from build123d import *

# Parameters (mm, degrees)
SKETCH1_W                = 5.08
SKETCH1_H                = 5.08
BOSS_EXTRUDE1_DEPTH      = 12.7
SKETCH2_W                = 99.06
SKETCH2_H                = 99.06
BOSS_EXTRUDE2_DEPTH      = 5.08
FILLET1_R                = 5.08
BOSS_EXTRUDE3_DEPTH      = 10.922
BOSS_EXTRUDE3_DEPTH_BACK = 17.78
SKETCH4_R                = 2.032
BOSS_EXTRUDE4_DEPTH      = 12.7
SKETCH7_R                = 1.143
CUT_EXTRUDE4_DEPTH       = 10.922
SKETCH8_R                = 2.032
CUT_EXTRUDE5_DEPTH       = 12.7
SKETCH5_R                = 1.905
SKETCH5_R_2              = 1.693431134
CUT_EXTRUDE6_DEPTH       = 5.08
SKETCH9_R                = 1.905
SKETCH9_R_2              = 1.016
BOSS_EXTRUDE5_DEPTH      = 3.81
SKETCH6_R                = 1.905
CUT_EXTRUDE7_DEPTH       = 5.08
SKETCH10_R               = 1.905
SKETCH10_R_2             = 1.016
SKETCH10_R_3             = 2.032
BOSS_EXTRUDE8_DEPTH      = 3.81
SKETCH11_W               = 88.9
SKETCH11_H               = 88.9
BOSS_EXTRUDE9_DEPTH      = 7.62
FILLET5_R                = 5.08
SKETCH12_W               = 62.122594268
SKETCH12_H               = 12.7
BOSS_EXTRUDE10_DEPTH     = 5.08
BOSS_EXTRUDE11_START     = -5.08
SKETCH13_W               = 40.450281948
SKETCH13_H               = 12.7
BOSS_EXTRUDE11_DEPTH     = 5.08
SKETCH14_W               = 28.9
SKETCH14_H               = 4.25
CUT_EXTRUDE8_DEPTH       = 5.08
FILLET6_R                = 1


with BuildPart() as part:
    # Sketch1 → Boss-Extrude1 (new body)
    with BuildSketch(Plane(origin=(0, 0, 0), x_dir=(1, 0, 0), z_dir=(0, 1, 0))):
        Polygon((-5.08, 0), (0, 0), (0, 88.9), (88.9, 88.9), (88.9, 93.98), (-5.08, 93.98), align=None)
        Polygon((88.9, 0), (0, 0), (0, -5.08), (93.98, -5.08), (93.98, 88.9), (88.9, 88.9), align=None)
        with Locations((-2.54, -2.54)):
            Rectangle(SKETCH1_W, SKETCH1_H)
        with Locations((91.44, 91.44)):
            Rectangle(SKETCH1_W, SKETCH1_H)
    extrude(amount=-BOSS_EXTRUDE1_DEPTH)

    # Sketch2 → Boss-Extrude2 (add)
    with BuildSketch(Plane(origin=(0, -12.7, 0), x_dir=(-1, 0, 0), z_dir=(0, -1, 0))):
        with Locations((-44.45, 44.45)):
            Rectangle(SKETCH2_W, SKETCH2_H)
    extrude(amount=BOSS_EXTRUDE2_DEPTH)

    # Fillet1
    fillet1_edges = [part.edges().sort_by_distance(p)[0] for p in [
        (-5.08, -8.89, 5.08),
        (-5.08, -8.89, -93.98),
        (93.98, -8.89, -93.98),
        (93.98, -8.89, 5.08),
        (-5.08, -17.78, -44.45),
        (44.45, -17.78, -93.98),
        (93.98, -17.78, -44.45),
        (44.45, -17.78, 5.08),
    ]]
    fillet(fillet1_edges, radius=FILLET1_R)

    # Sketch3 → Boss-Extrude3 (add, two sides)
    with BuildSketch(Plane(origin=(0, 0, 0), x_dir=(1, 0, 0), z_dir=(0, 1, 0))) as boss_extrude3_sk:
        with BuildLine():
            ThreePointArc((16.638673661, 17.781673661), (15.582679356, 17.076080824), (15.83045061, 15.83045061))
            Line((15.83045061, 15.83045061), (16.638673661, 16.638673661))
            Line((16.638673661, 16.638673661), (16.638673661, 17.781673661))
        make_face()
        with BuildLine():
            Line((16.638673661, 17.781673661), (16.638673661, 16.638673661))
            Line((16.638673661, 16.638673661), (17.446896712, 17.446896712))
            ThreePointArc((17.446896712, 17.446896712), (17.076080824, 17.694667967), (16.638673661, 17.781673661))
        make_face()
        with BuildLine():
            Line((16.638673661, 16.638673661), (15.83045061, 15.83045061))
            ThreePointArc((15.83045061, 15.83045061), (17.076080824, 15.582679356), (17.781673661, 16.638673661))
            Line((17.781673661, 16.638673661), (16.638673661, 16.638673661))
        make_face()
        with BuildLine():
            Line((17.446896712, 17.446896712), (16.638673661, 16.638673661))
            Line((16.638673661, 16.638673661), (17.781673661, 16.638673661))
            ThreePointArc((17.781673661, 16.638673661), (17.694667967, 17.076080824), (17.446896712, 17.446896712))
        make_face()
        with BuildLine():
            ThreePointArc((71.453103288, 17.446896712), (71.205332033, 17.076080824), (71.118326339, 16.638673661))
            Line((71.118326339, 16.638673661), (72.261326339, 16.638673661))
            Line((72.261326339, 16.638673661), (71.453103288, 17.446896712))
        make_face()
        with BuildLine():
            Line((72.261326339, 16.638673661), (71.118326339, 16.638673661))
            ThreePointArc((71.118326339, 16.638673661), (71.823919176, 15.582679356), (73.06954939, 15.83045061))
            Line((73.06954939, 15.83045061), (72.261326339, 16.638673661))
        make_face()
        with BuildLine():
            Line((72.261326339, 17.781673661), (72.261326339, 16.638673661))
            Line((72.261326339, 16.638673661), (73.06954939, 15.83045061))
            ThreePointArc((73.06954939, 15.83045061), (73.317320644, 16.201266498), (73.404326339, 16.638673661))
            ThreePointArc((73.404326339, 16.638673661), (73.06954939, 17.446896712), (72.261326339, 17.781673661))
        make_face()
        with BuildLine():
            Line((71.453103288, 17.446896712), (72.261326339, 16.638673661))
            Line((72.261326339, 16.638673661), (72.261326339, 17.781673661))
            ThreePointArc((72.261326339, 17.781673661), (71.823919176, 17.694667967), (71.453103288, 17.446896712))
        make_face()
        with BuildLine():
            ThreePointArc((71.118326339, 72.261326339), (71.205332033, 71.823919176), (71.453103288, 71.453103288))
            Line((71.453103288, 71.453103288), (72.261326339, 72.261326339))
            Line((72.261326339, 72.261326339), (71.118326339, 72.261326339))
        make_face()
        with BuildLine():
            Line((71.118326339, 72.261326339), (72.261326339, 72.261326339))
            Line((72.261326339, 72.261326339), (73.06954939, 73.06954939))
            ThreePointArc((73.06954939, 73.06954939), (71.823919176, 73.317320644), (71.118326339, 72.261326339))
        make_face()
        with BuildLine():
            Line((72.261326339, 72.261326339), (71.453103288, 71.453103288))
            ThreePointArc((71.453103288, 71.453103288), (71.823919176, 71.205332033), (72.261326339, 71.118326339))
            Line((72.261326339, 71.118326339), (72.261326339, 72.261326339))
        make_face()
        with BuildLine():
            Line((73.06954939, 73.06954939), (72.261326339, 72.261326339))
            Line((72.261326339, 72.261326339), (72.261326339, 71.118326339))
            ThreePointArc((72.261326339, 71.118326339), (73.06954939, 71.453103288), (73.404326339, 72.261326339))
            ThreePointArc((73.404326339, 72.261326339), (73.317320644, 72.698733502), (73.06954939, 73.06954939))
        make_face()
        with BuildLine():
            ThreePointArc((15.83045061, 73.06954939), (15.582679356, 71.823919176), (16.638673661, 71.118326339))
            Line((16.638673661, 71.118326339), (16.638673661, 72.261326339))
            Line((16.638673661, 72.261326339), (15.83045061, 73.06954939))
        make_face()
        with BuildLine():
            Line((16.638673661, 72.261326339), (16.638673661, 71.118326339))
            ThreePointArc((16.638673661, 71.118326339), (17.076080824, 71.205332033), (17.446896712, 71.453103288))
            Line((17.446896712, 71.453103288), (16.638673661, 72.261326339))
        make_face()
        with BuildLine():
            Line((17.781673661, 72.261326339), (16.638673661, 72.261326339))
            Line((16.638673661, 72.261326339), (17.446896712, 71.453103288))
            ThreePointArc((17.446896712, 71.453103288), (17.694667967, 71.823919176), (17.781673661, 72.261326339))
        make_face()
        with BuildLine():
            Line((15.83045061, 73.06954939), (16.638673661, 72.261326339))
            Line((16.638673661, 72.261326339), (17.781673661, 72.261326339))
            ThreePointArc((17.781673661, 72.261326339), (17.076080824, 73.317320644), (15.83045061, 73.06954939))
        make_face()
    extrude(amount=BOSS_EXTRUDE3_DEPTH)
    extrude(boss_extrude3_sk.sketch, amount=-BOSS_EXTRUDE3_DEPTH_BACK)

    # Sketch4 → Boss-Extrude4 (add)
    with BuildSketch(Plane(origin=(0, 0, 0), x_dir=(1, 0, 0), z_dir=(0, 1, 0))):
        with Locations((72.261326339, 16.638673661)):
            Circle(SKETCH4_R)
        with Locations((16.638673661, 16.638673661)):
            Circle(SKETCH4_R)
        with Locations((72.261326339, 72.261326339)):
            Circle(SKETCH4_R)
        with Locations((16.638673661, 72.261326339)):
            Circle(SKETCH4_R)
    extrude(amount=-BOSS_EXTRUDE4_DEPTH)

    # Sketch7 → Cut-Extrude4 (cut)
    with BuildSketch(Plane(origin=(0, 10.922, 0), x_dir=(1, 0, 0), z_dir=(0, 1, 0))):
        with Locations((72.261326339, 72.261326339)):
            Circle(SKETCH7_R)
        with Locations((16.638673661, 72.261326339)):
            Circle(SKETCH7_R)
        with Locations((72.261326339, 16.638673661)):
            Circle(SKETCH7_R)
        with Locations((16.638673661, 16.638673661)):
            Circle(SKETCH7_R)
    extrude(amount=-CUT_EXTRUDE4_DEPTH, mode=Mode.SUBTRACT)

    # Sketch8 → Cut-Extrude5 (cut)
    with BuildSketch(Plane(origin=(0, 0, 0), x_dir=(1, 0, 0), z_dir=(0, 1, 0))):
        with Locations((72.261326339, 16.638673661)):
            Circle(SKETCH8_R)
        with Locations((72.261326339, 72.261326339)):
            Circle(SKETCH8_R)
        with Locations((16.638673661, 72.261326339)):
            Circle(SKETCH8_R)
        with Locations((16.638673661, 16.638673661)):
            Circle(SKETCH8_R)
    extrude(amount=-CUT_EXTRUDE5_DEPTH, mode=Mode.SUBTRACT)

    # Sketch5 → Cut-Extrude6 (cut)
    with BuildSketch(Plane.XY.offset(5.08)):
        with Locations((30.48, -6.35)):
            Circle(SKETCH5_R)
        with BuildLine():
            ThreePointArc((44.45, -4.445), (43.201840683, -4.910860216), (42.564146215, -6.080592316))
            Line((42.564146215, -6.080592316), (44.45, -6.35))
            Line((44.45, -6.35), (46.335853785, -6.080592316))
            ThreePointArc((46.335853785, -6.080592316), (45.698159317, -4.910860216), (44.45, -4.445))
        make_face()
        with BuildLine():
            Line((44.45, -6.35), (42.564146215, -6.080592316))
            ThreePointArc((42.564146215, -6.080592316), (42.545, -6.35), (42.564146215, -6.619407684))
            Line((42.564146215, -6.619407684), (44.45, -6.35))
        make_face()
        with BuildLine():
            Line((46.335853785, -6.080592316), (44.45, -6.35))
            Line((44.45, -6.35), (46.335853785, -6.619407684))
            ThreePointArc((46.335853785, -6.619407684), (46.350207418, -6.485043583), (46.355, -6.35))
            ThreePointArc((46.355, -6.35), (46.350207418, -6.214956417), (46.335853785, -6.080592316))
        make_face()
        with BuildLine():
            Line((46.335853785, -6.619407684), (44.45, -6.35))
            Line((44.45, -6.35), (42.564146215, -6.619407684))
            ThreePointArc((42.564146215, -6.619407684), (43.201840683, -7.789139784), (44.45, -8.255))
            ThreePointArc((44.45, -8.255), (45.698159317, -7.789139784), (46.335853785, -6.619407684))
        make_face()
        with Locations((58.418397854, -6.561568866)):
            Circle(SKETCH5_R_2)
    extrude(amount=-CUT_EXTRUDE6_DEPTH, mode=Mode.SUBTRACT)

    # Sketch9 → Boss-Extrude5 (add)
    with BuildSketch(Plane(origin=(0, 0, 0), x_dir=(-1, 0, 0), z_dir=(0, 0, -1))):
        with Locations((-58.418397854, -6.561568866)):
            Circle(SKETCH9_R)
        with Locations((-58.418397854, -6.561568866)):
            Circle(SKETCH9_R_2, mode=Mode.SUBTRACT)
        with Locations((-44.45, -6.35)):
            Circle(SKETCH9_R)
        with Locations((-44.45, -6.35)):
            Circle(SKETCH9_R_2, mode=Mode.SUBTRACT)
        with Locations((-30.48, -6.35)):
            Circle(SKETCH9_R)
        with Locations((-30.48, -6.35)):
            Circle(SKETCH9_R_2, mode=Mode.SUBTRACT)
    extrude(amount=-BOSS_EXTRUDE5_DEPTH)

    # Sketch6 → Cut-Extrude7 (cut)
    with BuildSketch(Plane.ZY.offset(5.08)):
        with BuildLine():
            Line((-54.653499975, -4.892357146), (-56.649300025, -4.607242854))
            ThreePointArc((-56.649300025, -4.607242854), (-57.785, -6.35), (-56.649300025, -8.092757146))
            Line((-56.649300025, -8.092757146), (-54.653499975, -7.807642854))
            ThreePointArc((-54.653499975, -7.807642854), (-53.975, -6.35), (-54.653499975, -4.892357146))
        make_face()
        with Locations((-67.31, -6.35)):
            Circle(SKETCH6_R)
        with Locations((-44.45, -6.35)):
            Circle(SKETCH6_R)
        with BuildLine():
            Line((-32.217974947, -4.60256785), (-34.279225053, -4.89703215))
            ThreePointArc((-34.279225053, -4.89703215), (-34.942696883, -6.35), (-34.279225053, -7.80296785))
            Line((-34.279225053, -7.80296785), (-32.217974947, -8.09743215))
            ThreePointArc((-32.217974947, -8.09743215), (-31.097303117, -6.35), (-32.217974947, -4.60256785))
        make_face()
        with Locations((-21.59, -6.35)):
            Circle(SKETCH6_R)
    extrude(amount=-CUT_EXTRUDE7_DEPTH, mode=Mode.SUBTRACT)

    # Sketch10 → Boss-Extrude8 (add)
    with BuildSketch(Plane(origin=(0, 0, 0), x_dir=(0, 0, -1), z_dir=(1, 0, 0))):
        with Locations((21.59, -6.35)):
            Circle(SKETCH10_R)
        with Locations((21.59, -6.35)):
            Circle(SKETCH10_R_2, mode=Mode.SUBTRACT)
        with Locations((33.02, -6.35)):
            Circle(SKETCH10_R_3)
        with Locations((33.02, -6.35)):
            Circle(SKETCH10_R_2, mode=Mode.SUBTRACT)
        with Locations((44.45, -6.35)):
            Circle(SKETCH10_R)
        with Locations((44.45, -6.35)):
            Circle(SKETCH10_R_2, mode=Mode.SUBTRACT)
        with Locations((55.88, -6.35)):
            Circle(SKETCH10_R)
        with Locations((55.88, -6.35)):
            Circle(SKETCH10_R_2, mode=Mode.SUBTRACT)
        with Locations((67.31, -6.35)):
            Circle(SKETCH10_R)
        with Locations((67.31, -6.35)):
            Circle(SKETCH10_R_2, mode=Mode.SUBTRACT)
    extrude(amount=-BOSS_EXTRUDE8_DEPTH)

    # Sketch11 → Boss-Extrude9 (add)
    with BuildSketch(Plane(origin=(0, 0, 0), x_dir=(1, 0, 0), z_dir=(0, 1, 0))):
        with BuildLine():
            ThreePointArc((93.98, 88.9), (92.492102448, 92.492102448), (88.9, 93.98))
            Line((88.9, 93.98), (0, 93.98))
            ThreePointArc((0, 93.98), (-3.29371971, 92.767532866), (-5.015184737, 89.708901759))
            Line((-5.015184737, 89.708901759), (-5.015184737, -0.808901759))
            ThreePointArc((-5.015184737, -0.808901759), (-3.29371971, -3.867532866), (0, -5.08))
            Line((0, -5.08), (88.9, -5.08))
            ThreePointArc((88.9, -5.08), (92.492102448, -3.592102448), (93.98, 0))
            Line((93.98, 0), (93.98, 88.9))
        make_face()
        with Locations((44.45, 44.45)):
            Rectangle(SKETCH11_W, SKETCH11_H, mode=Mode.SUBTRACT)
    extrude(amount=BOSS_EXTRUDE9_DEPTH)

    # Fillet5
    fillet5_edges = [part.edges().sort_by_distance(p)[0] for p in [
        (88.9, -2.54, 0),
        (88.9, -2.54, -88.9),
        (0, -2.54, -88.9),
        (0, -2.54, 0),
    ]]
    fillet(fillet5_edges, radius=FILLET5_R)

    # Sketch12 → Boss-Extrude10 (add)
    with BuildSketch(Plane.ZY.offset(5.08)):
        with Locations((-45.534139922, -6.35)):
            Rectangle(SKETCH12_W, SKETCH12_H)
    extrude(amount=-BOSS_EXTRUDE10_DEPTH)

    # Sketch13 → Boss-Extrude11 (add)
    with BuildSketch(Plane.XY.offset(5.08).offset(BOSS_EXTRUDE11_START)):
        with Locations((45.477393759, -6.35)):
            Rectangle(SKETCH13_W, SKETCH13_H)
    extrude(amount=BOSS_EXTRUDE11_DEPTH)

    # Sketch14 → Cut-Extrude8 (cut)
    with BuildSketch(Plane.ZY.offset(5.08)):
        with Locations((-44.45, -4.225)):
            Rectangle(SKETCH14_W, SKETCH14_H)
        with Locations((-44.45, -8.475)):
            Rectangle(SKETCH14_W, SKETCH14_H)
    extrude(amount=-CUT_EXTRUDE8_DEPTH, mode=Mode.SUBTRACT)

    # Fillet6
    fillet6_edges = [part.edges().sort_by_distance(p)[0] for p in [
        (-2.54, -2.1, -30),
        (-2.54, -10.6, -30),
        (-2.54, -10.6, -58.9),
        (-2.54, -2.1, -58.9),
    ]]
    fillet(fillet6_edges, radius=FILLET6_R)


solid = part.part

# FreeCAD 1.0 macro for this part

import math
import FreeCAD as App
import Part
import Sketcher
Q = App.Units.Quantity


def edges_at(feature, points):
    """Names of the edges that pass closest to the given points."""
    edges = feature.Shape.Edges
    near = lambda p: min(range(len(edges)), key=lambda i: edges[i].distToShape(Part.Vertex(*p))[0])
    return sorted({f"Edge{near(p) + 1}" for p in points})


def add_polygon(sketch, points):
    """Adds a closed chain of lines whose ends are joined by coincident constraints."""
    first, n = sketch.GeometryCount, len(points)
    for a, b in zip(points, points[1:] + points[:1]):
        sketch.addGeometry(Part.LineSegment(App.Vector(*a, 0), App.Vector(*b, 0)), False)
    for i in range(n):
        sketch.addConstraint(Sketcher.Constraint("Coincident", first + i, 2, first + (i + 1) % n, 1))

doc = App.newDocument("Part")
body = doc.addObject("PartDesign::Body", "Body")

# Sketch on XZ plane
sketch1 = body.newObject("Sketcher::SketchObject", "Sketch")
sketch1.AttachmentSupport = (doc.getObject("XZ_Plane"), [""])
sketch1.MapMode = "FlatFace"
add_polygon(sketch1, [(93.98, 5.08), (93.98, -93.98), (-5.08, -93.98), (-5.08, 5.08)])  # lines 0-3
add_polygon(sketch1, [(0, -88.9), (88.9, -88.9), (88.9, 0), (0, 0)])  # lines 4-7
sketch1.addConstraint([
    Sketcher.Constraint("Vertical", 0),
    Sketcher.Constraint("Horizontal", 1),
    Sketcher.Constraint("Vertical", 2),
    Sketcher.Constraint("Horizontal", 3),
    Sketcher.Constraint("Horizontal", 4),
    Sketcher.Constraint("Vertical", 5),
    Sketcher.Constraint("Horizontal", 6),
    Sketcher.Constraint("Vertical", 7),
    Sketcher.Constraint("Coincident", 6, 2, -1, 1),
    Sketcher.Constraint("Equal", 3, 0),
    Sketcher.Constraint("Equal", 6, 5),
    Sketcher.Constraint("DistanceX", 1, 2, 1, 1, Q("3.9 in")),
    Sketcher.Constraint("DistanceX", 4, 1, 4, 2, Q("3.5 in")),
    Sketcher.Constraint("DistanceX", -1, 1, 0, 2, Q("3.7 in")),
    Sketcher.Constraint("DistanceY", 0, 2, -1, 1, Q("3.7 in")),
])
pad1 = body.newObject("PartDesign::Pad", "Pad")
pad1.Profile = sketch1
pad1.Length = Q("0.5 in")

# Sketch on XZ plane
sketch2 = body.newObject("Sketcher::SketchObject", "Sketch001")
sketch2.AttachmentSupport = (doc.getObject("XZ_Plane"), [""])
sketch2.MapMode = "FlatFace"
sketch2.AttachmentOffset = App.Placement(App.Vector(0, 0, 0.5 * 25.4), App.Rotation())
add_polygon(sketch2, [(93.98, -93.98), (93.98, 5.08), (-5.08, 5.08), (-5.08, -93.98)])  # lines 0-3
sketch2.addConstraint([
    Sketcher.Constraint("Vertical", 0),
    Sketcher.Constraint("Horizontal", 1),
    Sketcher.Constraint("Vertical", 2),
    Sketcher.Constraint("Horizontal", 3),
    Sketcher.Constraint("Equal", 3, 0),
    Sketcher.Constraint("DistanceX", 1, 2, 1, 1, Q("3.9 in")),
    Sketcher.Constraint("DistanceX", -1, 1, 0, 2, Q("3.7 in")),
    Sketcher.Constraint("DistanceY", -1, 1, 0, 2, Q("0.2 in")),
])
pad2 = body.newObject("PartDesign::Pad", "Pad001")
pad2.Profile = sketch2
pad2.Length = Q("0.2 in")
doc.recompute()

fillet = body.newObject("PartDesign::Fillet", "Fillet")
fillet.Base = (pad2, edges_at(pad2, [
    (-5.08, -8.89, 5.08),
    (-5.08, -8.89, -93.98),
    (93.98, -8.89, -93.98),
    (93.98, -8.89, 5.08),
    (-5.08, -17.78, -44.45),
    (44.45, -17.78, -93.98),
    (93.98, -17.78, -44.45),
    (44.45, -17.78, 5.08),
]))
fillet.Radius = Q("0.2 in")

# Sketch on XZ plane
sketch3 = body.newObject("Sketcher::SketchObject", "Sketch002")
sketch3.AttachmentSupport = (doc.getObject("XZ_Plane"), [""])
sketch3.MapMode = "FlatFace"
sketch3.addGeometry([
    Part.ArcOfCircle(Part.Circle(App.Vector(16.638674, -16.638674, 0), App.Vector(0, 0, 1), 1.143), math.radians(0), math.radians(135)),  # 0
    Part.ArcOfCircle(Part.Circle(App.Vector(16.638674, -16.638674, 0), App.Vector(0, 0, 1), 1.143), math.radians(-45), math.radians(0)),  # 1
    Part.ArcOfCircle(Part.Circle(App.Vector(16.638674, -16.638674, 0), App.Vector(0, 0, 1), 1.143), math.radians(-90), math.radians(-45)),  # 2
    Part.ArcOfCircle(Part.Circle(App.Vector(16.638674, -16.638674, 0), App.Vector(0, 0, 1), 1.143), math.radians(135), math.radians(270)),  # 3
    Part.ArcOfCircle(Part.Circle(App.Vector(72.261326, -16.638674, 0), App.Vector(0, 0, 1), 1.143), math.radians(-135), math.radians(-90)),  # 4
    Part.ArcOfCircle(Part.Circle(App.Vector(72.261326, -16.638674, 0), App.Vector(0, 0, 1), 1.143), math.radians(180), math.radians(225)),  # 5
    Part.ArcOfCircle(Part.Circle(App.Vector(72.261326, -16.638674, 0), App.Vector(0, 0, 1), 1.143), math.radians(45), math.radians(180)),  # 6
    Part.ArcOfCircle(Part.Circle(App.Vector(72.261326, -16.638674, 0), App.Vector(0, 0, 1), 1.143), math.radians(0), math.radians(45)),  # 7
    Part.ArcOfCircle(Part.Circle(App.Vector(72.261326, -16.638674, 0), App.Vector(0, 0, 1), 1.143), math.radians(-90), math.radians(0)),  # 8
    Part.ArcOfCircle(Part.Circle(App.Vector(72.261326, -72.261326, 0), App.Vector(0, 0, 1), 1.143), math.radians(90), math.radians(135)),  # 9
    Part.ArcOfCircle(Part.Circle(App.Vector(72.261326, -72.261326, 0), App.Vector(0, 0, 1), 1.143), math.radians(0), math.radians(90)),  # 10
    Part.ArcOfCircle(Part.Circle(App.Vector(72.261326, -72.261326, 0), App.Vector(0, 0, 1), 1.143), math.radians(-45), math.radians(0)),  # 11
    Part.ArcOfCircle(Part.Circle(App.Vector(72.261326, -72.261326, 0), App.Vector(0, 0, 1), 1.143), math.radians(-180), math.radians(-45)),  # 12
    Part.ArcOfCircle(Part.Circle(App.Vector(72.261326, -72.261326, 0), App.Vector(0, 0, 1), 1.143), math.radians(135), math.radians(180)),  # 13
    Part.ArcOfCircle(Part.Circle(App.Vector(16.638674, -72.261326, 0), App.Vector(0, 0, 1), 1.143), math.radians(90), math.radians(225)),  # 14
    Part.ArcOfCircle(Part.Circle(App.Vector(16.638674, -72.261326, 0), App.Vector(0, 0, 1), 1.143), math.radians(45), math.radians(90)),  # 15
    Part.ArcOfCircle(Part.Circle(App.Vector(16.638674, -72.261326, 0), App.Vector(0, 0, 1), 1.143), math.radians(0), math.radians(45)),  # 16
    Part.ArcOfCircle(Part.Circle(App.Vector(16.638674, -72.261326, 0), App.Vector(0, 0, 1), 1.143), math.radians(-135), math.radians(0)),  # 17
], False)
sketch3.addConstraint([
    Sketcher.Constraint("Tangent", 0, 1, 1, 2),
    Sketcher.Constraint("Tangent", 1, 1, 2, 2),
    Sketcher.Constraint("Tangent", 2, 1, 3, 2),
    Sketcher.Constraint("Tangent", 3, 1, 0, 2),
    Sketcher.Constraint("Tangent", 4, 1, 5, 2),
    Sketcher.Constraint("Tangent", 5, 1, 6, 2),
    Sketcher.Constraint("Tangent", 6, 1, 7, 2),
    Sketcher.Constraint("Tangent", 7, 1, 8, 2),
    Sketcher.Constraint("Tangent", 8, 1, 4, 2),
    Sketcher.Constraint("Tangent", 9, 1, 10, 2),
    Sketcher.Constraint("Tangent", 10, 1, 11, 2),
    Sketcher.Constraint("Tangent", 11, 1, 12, 2),
    Sketcher.Constraint("Tangent", 12, 1, 13, 2),
    Sketcher.Constraint("Tangent", 13, 1, 9, 2),
    Sketcher.Constraint("Tangent", 14, 1, 15, 2),
    Sketcher.Constraint("Tangent", 15, 1, 16, 2),
    Sketcher.Constraint("Tangent", 16, 1, 17, 2),
    Sketcher.Constraint("Tangent", 17, 1, 14, 2),
    Sketcher.Constraint("Coincident", 6, 3, 4, 3),
    Sketcher.Constraint("Coincident", 11, 3, 9, 3),
    Sketcher.Constraint("Equal", 0, 1),
    Sketcher.Constraint("Equal", 3, 4),
    Sketcher.Constraint("Equal", 8, 9),
    Sketcher.Constraint("Equal", 13, 14),
    Sketcher.Constraint("Equal", 14, 15),
    Sketcher.Constraint("Horizontal", 3, 3, 4, 3),
    Sketcher.Constraint("Horizontal", 13, 3, 14, 3),
    Sketcher.Constraint("Horizontal", 8, 3, 0, 1),
    Sketcher.Constraint("Horizontal", 1, 1, 4, 1),
    Sketcher.Constraint("Horizontal", 0, 1, 5, 1),
    Sketcher.Constraint("Horizontal", 3, 1, 6, 1),
    Sketcher.Constraint("Horizontal", 5, 1, 7, 1),
    Sketcher.Constraint("Horizontal", 17, 3, 10, 1),
    Sketcher.Constraint("Horizontal", 10, 1, 12, 1),
    Sketcher.Constraint("Horizontal", 13, 1, 15, 1),
    Sketcher.Constraint("Horizontal", 12, 1, 16, 1),
    Sketcher.Constraint("Horizontal", 11, 1, 17, 1),
    Sketcher.Constraint("Vertical", 8, 3, 9, 3),
    Sketcher.Constraint("Vertical", 3, 3, 14, 3),
    Sketcher.Constraint("Vertical", 17, 3, 2, 1),
    Sketcher.Constraint("Vertical", 13, 3, 8, 1),
    Sketcher.Constraint("Vertical", 8, 1, 9, 1),
    Sketcher.Constraint("Vertical", 6, 1, 11, 1),
    Sketcher.Constraint("Vertical", 4, 1, 13, 1),
    Sketcher.Constraint("Vertical", 2, 1, 14, 1),
    Sketcher.Constraint("Radius", 0, Q("0.045 in")),
    Sketcher.Constraint("DistanceX", -1, 1, 3, 1, 15.830451),
    Sketcher.Constraint("DistanceY", 3, 1, -1, 1, 15.830451),
    Sketcher.Constraint("DistanceX", -1, 1, 6, 1, 73.069549),
    Sketcher.Constraint("DistanceY", 11, 1, -1, 1, 73.069549),
    Sketcher.Constraint("DistanceX", -1, 1, 0, 3, 16.638674),
    Sketcher.Constraint("DistanceX", -1, 1, 1, 1, 17.446897),
])
pad3 = body.newObject("PartDesign::Pad", "Pad002")
pad3.Profile = sketch3
pad3.Type = "TwoLengths"
pad3.Length = Q("0.43 in")
pad3.Length2 = Q("0.7 in")
pad3.Reversed = True

# Sketch on XZ plane
sketch4 = body.newObject("Sketcher::SketchObject", "Sketch003")
sketch4.AttachmentSupport = (doc.getObject("XZ_Plane"), [""])
sketch4.MapMode = "FlatFace"
sketch4.addGeometry([
    Part.Circle(App.Vector(72.261326, -16.638674, 0), App.Vector(0, 0, 1), 2.032),
    Part.Circle(App.Vector(16.638674, -16.638674, 0), App.Vector(0, 0, 1), 2.032),
    Part.Circle(App.Vector(72.261326, -72.261326, 0), App.Vector(0, 0, 1), 2.032),
    Part.Circle(App.Vector(16.638674, -72.261326, 0), App.Vector(0, 0, 1), 2.032),
], False)
sketch4.addConstraint([
    Sketcher.Constraint("Equal", 0, 1),
    Sketcher.Constraint("Equal", 1, 2),
    Sketcher.Constraint("Equal", 2, 3),
    Sketcher.Constraint("Horizontal", 0, 3, 1, 3),
    Sketcher.Constraint("Horizontal", 2, 3, 3, 3),
    Sketcher.Constraint("Vertical", 0, 3, 2, 3),
    Sketcher.Constraint("Vertical", 1, 3, 3, 3),
    Sketcher.Constraint("Diameter", 0, Q("0.16 in")),
    Sketcher.Constraint("DistanceX", -1, 1, 0, 3, 72.261326),
    Sketcher.Constraint("DistanceY", 0, 3, -1, 1, 16.638674),
    Sketcher.Constraint("DistanceX", -1, 1, 1, 3, 16.638674),
    Sketcher.Constraint("DistanceY", 2, 3, -1, 1, 72.261326),
])
pad4 = body.newObject("PartDesign::Pad", "Pad003")
pad4.Profile = sketch4
pad4.Length = Q("0.5 in")

# Sketch on XZ plane
sketch5 = body.newObject("Sketcher::SketchObject", "Sketch004")
sketch5.AttachmentSupport = (doc.getObject("XZ_Plane"), [""])
sketch5.MapMode = "FlatFace"
sketch5.AttachmentOffset = App.Placement(App.Vector(0, 0, -0.43 * 25.4), App.Rotation())
sketch5.addGeometry([
    Part.Circle(App.Vector(72.261326, -72.261326, 0), App.Vector(0, 0, 1), 1.143),
    Part.Circle(App.Vector(16.638674, -72.261326, 0), App.Vector(0, 0, 1), 1.143),
    Part.Circle(App.Vector(72.261326, -16.638674, 0), App.Vector(0, 0, 1), 1.143),
    Part.Circle(App.Vector(16.638674, -16.638674, 0), App.Vector(0, 0, 1), 1.143),
], False)
sketch5.addConstraint([
    Sketcher.Constraint("Equal", 0, 1),
    Sketcher.Constraint("Equal", 1, 2),
    Sketcher.Constraint("Equal", 2, 3),
    Sketcher.Constraint("Horizontal", 0, 3, 1, 3),
    Sketcher.Constraint("Horizontal", 2, 3, 3, 3),
    Sketcher.Constraint("Vertical", 0, 3, 2, 3),
    Sketcher.Constraint("Vertical", 1, 3, 3, 3),
    Sketcher.Constraint("Diameter", 0, Q("0.09 in")),
    Sketcher.Constraint("DistanceX", -1, 1, 0, 3, 72.261326),
    Sketcher.Constraint("DistanceY", 0, 3, -1, 1, 72.261326),
    Sketcher.Constraint("DistanceX", -1, 1, 1, 3, 16.638674),
    Sketcher.Constraint("DistanceY", 2, 3, -1, 1, 16.638674),
])
pocket1 = body.newObject("PartDesign::Pocket", "Pocket")
pocket1.Profile = sketch5
pocket1.Length = Q("0.43 in")
pocket1.Reversed = True

# Sketch on XZ plane
sketch6 = body.newObject("Sketcher::SketchObject", "Sketch005")
sketch6.AttachmentSupport = (doc.getObject("XZ_Plane"), [""])
sketch6.MapMode = "FlatFace"
sketch6.addGeometry([
    Part.Circle(App.Vector(72.261326, -16.638674, 0), App.Vector(0, 0, 1), 2.032),
    Part.Circle(App.Vector(72.261326, -72.261326, 0), App.Vector(0, 0, 1), 2.032),
    Part.Circle(App.Vector(16.638674, -72.261326, 0), App.Vector(0, 0, 1), 2.032),
    Part.Circle(App.Vector(16.638674, -16.638674, 0), App.Vector(0, 0, 1), 2.032),
], False)
sketch6.addConstraint([
    Sketcher.Constraint("Equal", 0, 1),
    Sketcher.Constraint("Equal", 1, 2),
    Sketcher.Constraint("Equal", 2, 3),
    Sketcher.Constraint("Horizontal", 1, 3, 2, 3),
    Sketcher.Constraint("Horizontal", 0, 3, 3, 3),
    Sketcher.Constraint("Vertical", 0, 3, 1, 3),
    Sketcher.Constraint("Vertical", 2, 3, 3, 3),
    Sketcher.Constraint("Diameter", 0, Q("0.16 in")),
    Sketcher.Constraint("DistanceX", -1, 1, 0, 3, 72.261326),
    Sketcher.Constraint("DistanceY", 0, 3, -1, 1, 16.638674),
    Sketcher.Constraint("DistanceY", 1, 3, -1, 1, 72.261326),
    Sketcher.Constraint("DistanceX", -1, 1, 2, 3, 16.638674),
])
pocket2 = body.newObject("PartDesign::Pocket", "Pocket001")
pocket2.Profile = sketch6
pocket2.Length = Q("0.5 in")
pocket2.Reversed = True

# Sketch on XY plane
sketch7 = body.newObject("Sketcher::SketchObject", "Sketch006")
sketch7.AttachmentSupport = (doc.getObject("XY_Plane"), [""])
sketch7.MapMode = "FlatFace"
sketch7.AttachmentOffset = App.Placement(App.Vector(0, 0, 0.2 * 25.4), App.Rotation())
sketch7.addGeometry([
    Part.Circle(App.Vector(30.48, -6.35, 0), App.Vector(0, 0, 1), 1.905),  # 0
    Part.ArcOfCircle(Part.Circle(App.Vector(44.45, -6.35, 0), App.Vector(0, 0, 1), 1.905), math.radians(90), math.radians(171.869898)),  # 1
    Part.ArcOfCircle(Part.Circle(App.Vector(44.45, -6.35, 0), App.Vector(0, 0, 1), 1.905), math.radians(171.869897), math.radians(188.130103)),  # 2
    Part.ArcOfCircle(Part.Circle(App.Vector(44.45, -6.35, 0), App.Vector(0, 0, 1), 1.905), math.radians(-171.869898), math.radians(-90)),  # 3
    Part.ArcOfCircle(Part.Circle(App.Vector(44.45, -6.35, 0), App.Vector(0, 0, 1), 1.905), math.radians(-90), math.radians(-8.130102)),  # 4
    Part.ArcOfCircle(Part.Circle(App.Vector(44.45, -6.35, 0), App.Vector(0, 0, 1), 1.905), math.radians(-8.130103), math.radians(0)),  # 5
    Part.ArcOfCircle(Part.Circle(App.Vector(44.45, -6.35, 0), App.Vector(0, 0, 1), 1.905), math.radians(0), math.radians(8.130103)),  # 6
    Part.ArcOfCircle(Part.Circle(App.Vector(44.45, -6.35, 0), App.Vector(0, 0, 1), 1.905), math.radians(8.130102), math.radians(90)),  # 7
    Part.Circle(App.Vector(58.418398, -6.561569, 0), App.Vector(0, 0, 1), 1.693431),  # 8
], False)
sketch7.addConstraint([
    Sketcher.Constraint("Tangent", 1, 2, 2, 1),
    Sketcher.Constraint("Tangent", 2, 2, 3, 1),
    Sketcher.Constraint("Tangent", 3, 2, 4, 1),
    Sketcher.Constraint("Tangent", 4, 2, 5, 1),
    Sketcher.Constraint("Tangent", 5, 2, 6, 1),
    Sketcher.Constraint("Tangent", 6, 2, 7, 1),
    Sketcher.Constraint("Tangent", 7, 2, 1, 1),
    Sketcher.Constraint("Coincident", 3, 3, 1, 3),
    Sketcher.Constraint("Coincident", 5, 3, 1, 3),
    Sketcher.Constraint("Equal", 0, 1),
    Sketcher.Constraint("Horizontal", 0, 3, 1, 3),
    Sketcher.Constraint("Horizontal", 2, 2, 4, 2),
    Sketcher.Constraint("Horizontal", 7, 3, 5, 2),
    Sketcher.Constraint("Horizontal", 1, 2, 6, 2),
    Sketcher.Constraint("Vertical", 1, 2, 2, 2),
    Sketcher.Constraint("Vertical", 7, 3, 3, 2),
    Sketcher.Constraint("Vertical", 3, 2, 7, 2),
    Sketcher.Constraint("Diameter", 0, Q("0.15 in")),
    Sketcher.Constraint("DistanceX", -1, 1, 0, 3, Q("1.2 in")),
    Sketcher.Constraint("DistanceY", 0, 3, -1, 1, Q("0.25 in")),
    Sketcher.Constraint("DistanceX", -1, 1, 1, 3, Q("1.75 in")),
    Sketcher.Constraint("Diameter", 8, 3.386862),
    Sketcher.Constraint("DistanceY", 8, 3, -1, 1, 6.561569),
    Sketcher.Constraint("DistanceX", -1, 1, 8, 3, 58.418398),
    Sketcher.Constraint("DistanceX", -1, 1, 1, 2, 42.564146),
])
pocket3 = body.newObject("PartDesign::Pocket", "Pocket002")
pocket3.Profile = sketch7
pocket3.Length = Q("0.2 in")

# Sketch on XY plane
sketch8 = body.newObject("Sketcher::SketchObject", "Sketch007")
sketch8.AttachmentSupport = (doc.getObject("XY_Plane"), [""])
sketch8.MapMode = "FlatFace"
sketch8.addGeometry([
    Part.Circle(App.Vector(58.418398, -6.561569, 0), App.Vector(0, 0, 1), 1.905),  # 0
    Part.Circle(App.Vector(58.418398, -6.561569, 0), App.Vector(0, 0, 1), 1.016),  # 1
    Part.Circle(App.Vector(44.45, -6.35, 0), App.Vector(0, 0, 1), 1.905),  # 2
    Part.Circle(App.Vector(44.45, -6.35, 0), App.Vector(0, 0, 1), 1.016),  # 3
    Part.Circle(App.Vector(30.48, -6.35, 0), App.Vector(0, 0, 1), 1.905),  # 4
    Part.Circle(App.Vector(30.48, -6.35, 0), App.Vector(0, 0, 1), 1.016),  # 5
], False)
sketch8.addConstraint([
    Sketcher.Constraint("Coincident", 1, 3, 0, 3),
    Sketcher.Constraint("Coincident", 3, 3, 2, 3),
    Sketcher.Constraint("Coincident", 5, 3, 4, 3),
    Sketcher.Constraint("Equal", 0, 2),
    Sketcher.Constraint("Equal", 1, 3),
    Sketcher.Constraint("Equal", 2, 4),
    Sketcher.Constraint("Equal", 3, 5),
    Sketcher.Constraint("Horizontal", 3, 3, 4, 3),
    Sketcher.Constraint("Diameter", 0, Q("0.15 in")),
    Sketcher.Constraint("Diameter", 1, Q("0.08 in")),
    Sketcher.Constraint("DistanceX", -1, 1, 4, 3, Q("1.2 in")),
    Sketcher.Constraint("DistanceX", -1, 1, 2, 3, Q("1.75 in")),
    Sketcher.Constraint("DistanceY", 2, 3, -1, 1, Q("0.25 in")),
    Sketcher.Constraint("DistanceY", 0, 3, -1, 1, 6.561569),
    Sketcher.Constraint("DistanceX", -1, 1, 0, 3, 58.418398),
])
pad5 = body.newObject("PartDesign::Pad", "Pad004")
pad5.Profile = sketch8
pad5.Length = Q("0.15 in")

# Sketch on YZ plane
sketch9 = body.newObject("Sketcher::SketchObject", "Sketch008")
sketch9.AttachmentSupport = (doc.getObject("YZ_Plane"), [""])
sketch9.MapMode = "FlatFace"
sketch9.AttachmentOffset = App.Placement(App.Vector(0, 0, -0.2 * 25.4), App.Rotation())
sketch9.addGeometry([
    Part.LineSegment(App.Vector(-4.892357, -54.6535, 0), App.Vector(-4.607243, -56.6493, 0)),  # 0
    Part.ArcOfCircle(Part.Circle(App.Vector(-6.35, -55.88, 0), App.Vector(0, 0, 1), 1.905), math.radians(-156.182043), math.radians(-23.817957)),  # 1
    Part.LineSegment(App.Vector(-8.092757, -56.6493, 0), App.Vector(-7.807643, -54.6535, 0)),  # 2
    Part.ArcOfCircle(Part.Circle(App.Vector(-6.35, -55.88, 0), App.Vector(0, 0, 1), 1.905), math.radians(40.078162), math.radians(139.921838)),  # 3
    Part.Circle(App.Vector(-6.35, -67.31, 0), App.Vector(0, 0, 1), 1.905),  # 4
    Part.Circle(App.Vector(-6.35, -44.45, 0), App.Vector(0, 0, 1), 1.905),  # 5
    Part.LineSegment(App.Vector(-4.602568, -32.217975, 0), App.Vector(-4.897032, -34.279225, 0)),  # 6
    Part.ArcOfCircle(Part.Circle(App.Vector(-6.35, -33.02, 0), App.Vector(0, 0, 1), 1.922697), math.radians(-139.085926), math.radians(-40.914074)),  # 7
    Part.LineSegment(App.Vector(-7.802968, -34.279225, 0), App.Vector(-8.097432, -32.217975, 0)),  # 8
    Part.ArcOfCircle(Part.Circle(App.Vector(-6.35, -33.02, 0), App.Vector(0, 0, 1), 1.922697), math.radians(24.653869), math.radians(155.346131)),  # 9
    Part.Circle(App.Vector(-6.35, -21.59, 0), App.Vector(0, 0, 1), 1.905),  # 10
], False)
sketch9.addConstraint([
    Sketcher.Constraint("Coincident", 0, 2, 1, 2),
    Sketcher.Constraint("Coincident", 1, 1, 2, 1),
    Sketcher.Constraint("Coincident", 2, 2, 3, 2),
    Sketcher.Constraint("Coincident", 3, 1, 0, 1),
    Sketcher.Constraint("Coincident", 6, 2, 7, 2),
    Sketcher.Constraint("Coincident", 7, 1, 8, 1),
    Sketcher.Constraint("Coincident", 8, 2, 9, 2),
    Sketcher.Constraint("Coincident", 9, 1, 6, 1),
    Sketcher.Constraint("Coincident", 3, 3, 1, 3),
    Sketcher.Constraint("Coincident", 9, 3, 7, 3),
    Sketcher.Constraint("Equal", 1, 3),
    Sketcher.Constraint("Equal", 3, 4),
    Sketcher.Constraint("Equal", 4, 5),
    Sketcher.Constraint("Equal", 7, 9),
    Sketcher.Constraint("Equal", 5, 10),
    Sketcher.Constraint("Parallel", 2, 6),
    Sketcher.Constraint("Parallel", 0, 8),
    Sketcher.Constraint("Horizontal", 0, 2, 1, 1),
    Sketcher.Constraint("Horizontal", 2, 2, 3, 1),
    Sketcher.Constraint("Horizontal", 6, 2, 7, 1),
    Sketcher.Constraint("Vertical", 3, 3, 4, 3),
    Sketcher.Constraint("Vertical", 4, 3, 5, 3),
    Sketcher.Constraint("Vertical", 5, 3, 7, 3),
    Sketcher.Constraint("Vertical", 9, 3, 10, 3),
    Sketcher.Constraint("Diameter", 4, Q("0.15 in")),
    Sketcher.Constraint("DistanceY", 1, 3, -1, 1, Q("2.2 in")),
    Sketcher.Constraint("DistanceY", 7, 3, -1, 1, Q("1.3 in")),
    Sketcher.Constraint("DistanceY", 4, 3, 5, 3, Q("0.9 in")),
    Sketcher.Constraint("DistanceY", 5, 3, 10, 3, Q("0.9 in")),
    Sketcher.Constraint("DistanceX", 1, 3, -1, 1, Q("0.25 in")),
    Sketcher.Constraint("DistanceY", 4, 3, -1, 1, Q("2.65 in")),
    Sketcher.Constraint("DistanceX", 2, 2, 0, 2, Q("0.126 in")),
    Sketcher.Constraint("DistanceX", 8, 2, 6, 2, Q("0.126 in")),
    Sketcher.Constraint("Radius", 7, 1.922697),
    Sketcher.Constraint("DistanceY", 0, 2, -1, 1, 56.6493),
])
pocket4 = body.newObject("PartDesign::Pocket", "Pocket003")
pocket4.Profile = sketch9
pocket4.Length = Q("0.2 in")
pocket4.Reversed = True

# Sketch on YZ plane
sketch10 = body.newObject("Sketcher::SketchObject", "Sketch009")
sketch10.AttachmentSupport = (doc.getObject("YZ_Plane"), [""])
sketch10.MapMode = "FlatFace"
sketch10.addGeometry([
    Part.Circle(App.Vector(-6.35, -21.59, 0), App.Vector(0, 0, 1), 1.905),  # 0
    Part.Circle(App.Vector(-6.35, -21.59, 0), App.Vector(0, 0, 1), 1.016),  # 1
    Part.Circle(App.Vector(-6.35, -33.02, 0), App.Vector(0, 0, 1), 2.032),  # 2
    Part.Circle(App.Vector(-6.35, -33.02, 0), App.Vector(0, 0, 1), 1.016),  # 3
    Part.Circle(App.Vector(-6.35, -44.45, 0), App.Vector(0, 0, 1), 1.905),  # 4
    Part.Circle(App.Vector(-6.35, -44.45, 0), App.Vector(0, 0, 1), 1.016),  # 5
    Part.Circle(App.Vector(-6.35, -55.88, 0), App.Vector(0, 0, 1), 1.905),  # 6
    Part.Circle(App.Vector(-6.35, -55.88, 0), App.Vector(0, 0, 1), 1.016),  # 7
    Part.Circle(App.Vector(-6.35, -67.31, 0), App.Vector(0, 0, 1), 1.905),  # 8
    Part.Circle(App.Vector(-6.35, -67.31, 0), App.Vector(0, 0, 1), 1.016),  # 9
], False)
sketch10.addConstraint([
    Sketcher.Constraint("Coincident", 1, 3, 0, 3),
    Sketcher.Constraint("Coincident", 3, 3, 2, 3),
    Sketcher.Constraint("Coincident", 5, 3, 4, 3),
    Sketcher.Constraint("Coincident", 7, 3, 6, 3),
    Sketcher.Constraint("Coincident", 9, 3, 8, 3),
    Sketcher.Constraint("Equal", 1, 3),
    Sketcher.Constraint("Equal", 0, 4),
    Sketcher.Constraint("Equal", 3, 5),
    Sketcher.Constraint("Equal", 4, 6),
    Sketcher.Constraint("Equal", 5, 7),
    Sketcher.Constraint("Equal", 6, 8),
    Sketcher.Constraint("Equal", 7, 9),
    Sketcher.Constraint("Vertical", 1, 3, 2, 3),
    Sketcher.Constraint("Vertical", 3, 3, 4, 3),
    Sketcher.Constraint("Vertical", 5, 3, 6, 3),
    Sketcher.Constraint("Vertical", 7, 3, 8, 3),
    Sketcher.Constraint("Diameter", 0, Q("0.15 in")),
    Sketcher.Constraint("Diameter", 1, Q("0.08 in")),
    Sketcher.Constraint("Diameter", 2, Q("0.16 in")),
    Sketcher.Constraint("DistanceY", 2, 3, -1, 1, Q("1.3 in")),
    Sketcher.Constraint("DistanceY", 6, 3, -1, 1, Q("2.2 in")),
    Sketcher.Constraint("DistanceY", 4, 3, 0, 3, Q("0.9 in")),
    Sketcher.Constraint("DistanceY", 8, 3, 4, 3, Q("0.9 in")),
    Sketcher.Constraint("DistanceX", 0, 3, -1, 1, Q("0.25 in")),
    Sketcher.Constraint("DistanceY", 0, 3, -1, 1, Q("0.85 in")),
])
pad6 = body.newObject("PartDesign::Pad", "Pad005")
pad6.Profile = sketch10
pad6.Length = Q("0.15 in")
pad6.Reversed = True

# Sketch on XZ plane
sketch11 = body.newObject("Sketcher::SketchObject", "Sketch010")
sketch11.AttachmentSupport = (doc.getObject("XZ_Plane"), [""])
sketch11.MapMode = "FlatFace"
sketch11.addGeometry(Part.ArcOfCircle(Part.Circle(App.Vector(88.9, -88.9, 0), App.Vector(0, 0, 1), 5.08), math.radians(-90), math.radians(0)), False)  # 0
sketch11.addGeometry(Part.LineSegment(App.Vector(88.9, -93.98, 0), App.Vector(0, -93.98, 0)), False)  # 1
sketch11.addGeometry(Part.ArcOfCircle(Part.Circle(App.Vector(0, -88.9, 0), App.Vector(0, 0, 1), 5.08), math.radians(-170.837642), math.radians(-90)), False)  # 2
sketch11.addGeometry(Part.LineSegment(App.Vector(-5.015185, -89.708902, 0), App.Vector(-5.015185, 0.808902, 0)), False)  # 3
sketch11.addGeometry(Part.ArcOfCircle(Part.Circle(App.Vector(0, 0, 0), App.Vector(0, 0, 1), 5.08), math.radians(90), math.radians(170.837642)), False)  # 4
sketch11.addGeometry(Part.LineSegment(App.Vector(0, 5.08, 0), App.Vector(88.9, 5.08, 0)), False)  # 5
sketch11.addGeometry(Part.ArcOfCircle(Part.Circle(App.Vector(88.9, 0, 0), App.Vector(0, 0, 1), 5.08), math.radians(0), math.radians(90)), False)  # 6
sketch11.addGeometry(Part.LineSegment(App.Vector(93.98, 0, 0), App.Vector(93.98, -88.9, 0)), False)  # 7
add_polygon(sketch11, [(88.9, 0), (0, 0), (0, -88.9), (88.9, -88.9)])  # lines 8-11
sketch11.addConstraint([
    Sketcher.Constraint("Tangent", 0, 1, 1, 1),
    Sketcher.Constraint("Tangent", 1, 2, 2, 2),
    Sketcher.Constraint("Coincident", 2, 1, 3, 1),
    Sketcher.Constraint("Coincident", 3, 2, 4, 2),
    Sketcher.Constraint("Tangent", 4, 1, 5, 1),
    Sketcher.Constraint("Tangent", 5, 2, 6, 2),
    Sketcher.Constraint("Tangent", 6, 1, 7, 1),
    Sketcher.Constraint("Tangent", 7, 2, 0, 2),
    Sketcher.Constraint("Horizontal", 1),
    Sketcher.Constraint("Vertical", 3),
    Sketcher.Constraint("Horizontal", 5),
    Sketcher.Constraint("Vertical", 7),
    Sketcher.Constraint("Horizontal", 8),
    Sketcher.Constraint("Vertical", 9),
    Sketcher.Constraint("Horizontal", 10),
    Sketcher.Constraint("Vertical", 11),
    Sketcher.Constraint("Coincident", 4, 3, -1, 1),
    Sketcher.Constraint("Coincident", 8, 2, -1, 1),
    Sketcher.Constraint("Coincident", 9, 2, 2, 3),
    Sketcher.Constraint("Coincident", 10, 2, 0, 3),
    Sketcher.Constraint("Coincident", 11, 2, 6, 3),
    Sketcher.Constraint("Equal", 10, 7),
    Sketcher.Constraint("Radius", 0, Q("0.2 in")),
    Sketcher.Constraint("DistanceX", 1, 2, 1, 1, Q("3.5 in")),
    Sketcher.Constraint("DistanceY", 2, 1, -1, 1, 89.708902),
])
pad7 = body.newObject("PartDesign::Pad", "Pad006")
pad7.Profile = sketch11
pad7.Length = Q("0.3 in")
pad7.Reversed = True
doc.recompute()

fillet2 = body.newObject("PartDesign::Fillet", "Fillet001")
fillet2.Base = (pad7, edges_at(pad7, [
    (88.9, -2.54, 0),
    (88.9, -2.54, -88.9),
    (0, -2.54, -88.9),
    (0, -2.54, 0),
]))
fillet2.Radius = Q("0.2 in")

# Sketch on YZ plane
sketch12 = body.newObject("Sketcher::SketchObject", "Sketch011")
sketch12.AttachmentSupport = (doc.getObject("YZ_Plane"), [""])
sketch12.MapMode = "FlatFace"
sketch12.AttachmentOffset = App.Placement(App.Vector(0, 0, -0.2 * 25.4), App.Rotation())
add_polygon(sketch12, [(0, -76.595437), (-12.7, -76.595437), (-12.7, -14.472843), (0, -14.472843)])  # lines 0-3
sketch12.addConstraint([
    Sketcher.Constraint("Horizontal", 0),
    Sketcher.Constraint("Vertical", 1),
    Sketcher.Constraint("Horizontal", 2),
    Sketcher.Constraint("Vertical", 3),
    Sketcher.Constraint("PointOnObject", 2, 2, -2),
    Sketcher.Constraint("DistanceX", 0, 2, 0, 1, Q("0.5 in")),
    Sketcher.Constraint("DistanceY", 1, 1, 1, 2, 62.122594),
    Sketcher.Constraint("DistanceY", 0, 2, -1, 1, 76.595437),
])
pad8 = body.newObject("PartDesign::Pad", "Pad007")
pad8.Profile = sketch12
pad8.Length = Q("0.2 in")

# Sketch on XY plane
sketch13 = body.newObject("Sketcher::SketchObject", "Sketch012")
sketch13.AttachmentSupport = (doc.getObject("XY_Plane"), [""])
sketch13.MapMode = "FlatFace"
add_polygon(sketch13, [(25.252253, 0), (25.252253, -12.7), (65.702535, -12.7), (65.702535, 0)])  # lines 0-3
sketch13.addConstraint([
    Sketcher.Constraint("Vertical", 0),
    Sketcher.Constraint("Horizontal", 1),
    Sketcher.Constraint("Vertical", 2),
    Sketcher.Constraint("Horizontal", 3),
    Sketcher.Constraint("PointOnObject", 2, 2, -1),
    Sketcher.Constraint("DistanceY", 0, 2, 0, 1, Q("0.5 in")),
    Sketcher.Constraint("DistanceX", 1, 1, 1, 2, 40.450282),
    Sketcher.Constraint("DistanceX", -1, 1, 0, 2, 25.252253),
])
pad9 = body.newObject("PartDesign::Pad", "Pad008")
pad9.Profile = sketch13
pad9.Length = Q("0.2 in")

# Sketch on YZ plane
sketch14 = body.newObject("Sketcher::SketchObject", "Sketch013")
sketch14.AttachmentSupport = (doc.getObject("YZ_Plane"), [""])
sketch14.MapMode = "FlatFace"
sketch14.AttachmentOffset = App.Placement(App.Vector(0, 0, -0.2 * 25.4), App.Rotation())
add_polygon(sketch14, [(-2.1, -58.9), (-10.6, -58.9), (-10.6, -30), (-2.1, -30)])  # lines 0-3
sketch14.addConstraint([
    Sketcher.Constraint("Horizontal", 0),
    Sketcher.Constraint("Vertical", 1),
    Sketcher.Constraint("Horizontal", 2),
    Sketcher.Constraint("Vertical", 3),
    Sketcher.Constraint("DistanceX", 0, 2, 0, 1, 8.5),
    Sketcher.Constraint("DistanceY", 1, 1, 1, 2, 28.9),
    Sketcher.Constraint("DistanceX", 0, 2, -1, 1, 10.6),
    Sketcher.Constraint("DistanceY", 0, 2, -1, 1, 58.9),
])
pocket5 = body.newObject("PartDesign::Pocket", "Pocket004")
pocket5.Profile = sketch14
pocket5.Length = Q("0.2 in")
pocket5.Reversed = True
doc.recompute()

fillet3 = body.newObject("PartDesign::Fillet", "Fillet002")
fillet3.Base = (pocket5, edges_at(pocket5, [
    (-2.54, -2.1, -30),
    (-2.54, -10.6, -30),
    (-2.54, -10.6, -58.9),
    (-2.54, -2.1, -58.9),
]))
fillet3.Radius = 1

doc.recompute()
